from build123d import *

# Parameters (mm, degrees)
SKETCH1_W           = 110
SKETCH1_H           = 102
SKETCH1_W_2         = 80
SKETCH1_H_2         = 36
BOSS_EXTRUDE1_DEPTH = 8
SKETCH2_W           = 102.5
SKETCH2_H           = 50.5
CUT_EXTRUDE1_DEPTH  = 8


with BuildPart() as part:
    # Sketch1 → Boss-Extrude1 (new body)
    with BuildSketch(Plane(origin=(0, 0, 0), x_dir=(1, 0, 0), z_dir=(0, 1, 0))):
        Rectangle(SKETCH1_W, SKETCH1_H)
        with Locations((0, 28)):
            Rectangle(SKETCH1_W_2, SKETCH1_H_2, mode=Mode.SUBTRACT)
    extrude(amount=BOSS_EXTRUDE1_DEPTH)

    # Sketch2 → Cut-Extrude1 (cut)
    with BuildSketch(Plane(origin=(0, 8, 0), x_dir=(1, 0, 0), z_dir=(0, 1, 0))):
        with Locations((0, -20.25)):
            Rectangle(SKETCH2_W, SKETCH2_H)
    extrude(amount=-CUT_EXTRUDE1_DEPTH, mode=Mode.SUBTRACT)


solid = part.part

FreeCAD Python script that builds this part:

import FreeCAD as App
import Part
import Sketcher
from FreeCAD import Vector
Q = App.Units.Quantity

doc = App.newDocument("Part")
body = doc.addObject("PartDesign::Body", "Body")

sketch1 = body.newObject("Sketcher::SketchObject", "Sketch")
sketch1.AttachmentSupport = (doc.getObject("XZ_Plane"), [""])
sketch1.MapMode = "FlatFace"
sketch1.addGeometry(Part.LineSegment(Vector(-55, -51, 0), Vector(-55, 51, 0)), False)
sketch1.addGeometry(Part.LineSegment(Vector(-55, 51, 0), Vector(55, 51, 0)), False)
sketch1.addGeometry(Part.LineSegment(Vector(55, 51, 0), Vector(55, -51, 0)), False)
sketch1.addGeometry(Part.LineSegment(Vector(55, -51, 0), Vector(-55, -51, 0)), False)
sketch1.addGeometry(Part.LineSegment(Vector(40, -10, 0), Vector(-40, -10, 0)), False)
sketch1.addGeometry(Part.LineSegment(Vector(-40, -10, 0), Vector(-40, -46, 0)), False)
sketch1.addGeometry(Part.LineSegment(Vector(-40, -46, 0), Vector(40, -46, 0)), False)
sketch1.addGeometry(Part.LineSegment(Vector(40, -46, 0), Vector(40, -10, 0)), False)
sketch1.addConstraint(Sketcher.Constraint("Coincident", 0, 2, 1, 1))
sketch1.addConstraint(Sketcher.Constraint("Coincident", 1, 2, 2, 1))
sketch1.addConstraint(Sketcher.Constraint("Coincident", 2, 2, 3, 1))
sketch1.addConstraint(Sketcher.Constraint("Coincident", 3, 2, 0, 1))
sketch1.addConstraint(Sketcher.Constraint("Coincident", 4, 2, 5, 1))
sketch1.addConstraint(Sketcher.Constraint("Coincident", 5, 2, 6, 1))
sketch1.addConstraint(Sketcher.Constraint("Coincident", 6, 2, 7, 1))
sketch1.addConstraint(Sketcher.Constraint("Coincident", 7, 2, 4, 1))
sketch1.addConstraint(Sketcher.Constraint("Vertical", 0))
sketch1.addConstraint(Sketcher.Constraint("Horizontal", 1))
sketch1.addConstraint(Sketcher.Constraint("Vertical", 2))
sketch1.addConstraint(Sketcher.Constraint("Horizontal", 3))
sketch1.addConstraint(Sketcher.Constraint("Horizontal", 4))
sketch1.addConstraint(Sketcher.Constraint("Vertical", 5))
sketch1.addConstraint(Sketcher.Constraint("Horizontal", 6))
sketch1.addConstraint(Sketcher.Constraint("Vertical", 7))
sketch1.addConstraint(Sketcher.Constraint("Symmetric", 0, 2, 2, 2, -1, 1))
sketch1.addConstraint(Sketcher.Constraint("DistanceX", 1, 1, 1, 2, Q("110 mm")))
sketch1.addConstraint(Sketcher.Constraint("DistanceX", 4, 2, 4, 1, Q("80 mm")))
sketch1.addConstraint(Sketcher.Constraint("DistanceY", 0, 1, 0, 2, Q("102 mm")))
sketch1.addConstraint(Sketcher.Constraint("DistanceY", 5, 2, 5, 1, Q("36 mm")))
sketch1.addConstraint(Sketcher.Constraint("DistanceX", 4, 2, -1, 1, Q("40 mm")))
sketch1.addConstraint(Sketcher.Constraint("DistanceY", 4, 2, -1, 1, Q("10 mm")))
pad1 = body.newObject("PartDesign::Pad", "Pad")
pad1.Profile = sketch1
pad1.Length = 8
pad1.Reversed = True

sketch2 = body.newObject("Sketcher::SketchObject", "Sketch001")
sketch2.AttachmentSupport = (doc.getObject("XZ_Plane"), [""])
sketch2.MapMode = "FlatFace"
sketch2.AttachmentOffset = App.Placement(Vector(0, 0, -8), App.Rotation())
sketch2.addGeometry(Part.LineSegment(Vector(-51.25, -5, 0), Vector(-51.25, 45.5, 0)), False)
sketch2.addGeometry(Part.LineSegment(Vector(-51.25, 45.5, 0), Vector(51.25, 45.5, 0)), False)
sketch2.addGeometry(Part.LineSegment(Vector(51.25, 45.5, 0), Vector(51.25, -5, 0)), False)
sketch2.addGeometry(Part.LineSegment(Vector(51.25, -5, 0), Vector(-51.25, -5, 0)), False)
sketch2.addConstraint(Sketcher.Constraint("Coincident", 0, 2, 1, 1))
sketch2.addConstraint(Sketcher.Constraint("Coincident", 1, 2, 2, 1))
sketch2.addConstraint(Sketcher.Constraint("Coincident", 2, 2, 3, 1))
sketch2.addConstraint(Sketcher.Constraint("Coincident", 3, 2, 0, 1))
sketch2.addConstraint(Sketcher.Constraint("Vertical", 0))
sketch2.addConstraint(Sketcher.Constraint("Horizontal", 1))
sketch2.addConstraint(Sketcher.Constraint("Vertical", 2))
sketch2.addConstraint(Sketcher.Constraint("Horizontal", 3))
sketch2.addConstraint(Sketcher.Constraint("DistanceX", 1, 1, 1, 2, Q("102.5 mm")))
sketch2.addConstraint(Sketcher.Constraint("DistanceY", 0, 1, 0, 2, Q("50.5 mm")))
sketch2.addConstraint(Sketcher.Constraint("DistanceY", 2, 2, -1, 1, Q("5 mm")))
sketch2.addConstraint(Sketcher.Constraint("DistanceX", 0, 2, -1, 1, Q("51.25 mm")))
pocket1 = body.newObject("PartDesign::Pocket", "Pocket")
pocket1.Profile = sketch2
pocket1.Length = 8
pocket1.Reversed = True

doc.recompute()
